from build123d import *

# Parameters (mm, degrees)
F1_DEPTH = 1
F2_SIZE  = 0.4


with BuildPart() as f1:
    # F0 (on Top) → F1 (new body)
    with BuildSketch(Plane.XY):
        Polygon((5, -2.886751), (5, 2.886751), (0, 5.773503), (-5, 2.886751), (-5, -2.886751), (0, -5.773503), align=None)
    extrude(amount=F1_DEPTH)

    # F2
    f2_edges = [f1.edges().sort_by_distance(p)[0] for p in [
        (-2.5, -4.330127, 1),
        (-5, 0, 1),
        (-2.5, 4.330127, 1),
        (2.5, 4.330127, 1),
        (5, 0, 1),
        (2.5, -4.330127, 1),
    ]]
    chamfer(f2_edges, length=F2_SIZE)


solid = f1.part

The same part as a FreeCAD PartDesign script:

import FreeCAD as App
import Part
import Sketcher
from FreeCAD import Vector
Q = App.Units.Quantity


def edges_at(feature, points):
    """Names of the edges that pass closest to the given points."""
    edges = feature.Shape.Edges
    near = lambda p: min(range(len(edges)), key=lambda i: edges[i].distToShape(Part.Vertex(*p))[0])
    return sorted({f"Edge{near(p) + 1}" for p in points})


def add_polygon(sketch, points):
    """Adds a closed chain of lines whose ends are joined by coincident constraints."""
    first, n = sketch.GeometryCount, len(points)
    for a, b in zip(points, points[1:] + points[:1]):
        sketch.addGeometry(Part.LineSegment(App.Vector(*a, 0), App.Vector(*b, 0)), False)
    for i in range(n):
        sketch.addConstraint(Sketcher.Constraint("Coincident", first + i, 2, first + (i + 1) % n, 1))

doc = App.newDocument("Part")
body = doc.addObject("PartDesign::Body", "Body")

# Sketch on XY plane
sketch1 = body.newObject("Sketcher::SketchObject", "Sketch")
sketch1.AttachmentSupport = (doc.getObject("XY_Plane"), [""])
sketch1.MapMode = "FlatFace"
add_polygon(sketch1, [(5, -2.886751), (5, 2.886751), (0, 5.773503), (-5, 2.886751), (-5, -2.886751), (0, -5.773503)])  # lines 0-5
sketch1.addConstraint([
    Sketcher.Constraint("Vertical", 0),
    Sketcher.Constraint("Vertical", 3),
    Sketcher.Constraint("Symmetric", 0, 2, 3, 2, -1, 1),
    Sketcher.Constraint("Symmetric", 1, 2, 4, 2, -1, 1),
    Sketcher.Constraint("PointOnObject", 1, 2, -2),
    Sketcher.Constraint("Parallel", 2, 5),
    Sketcher.Constraint("Horizontal", 0, 2, 2, 2),
    Sketcher.Constraint("Angle", 1, Q("149.999994 deg")),
    Sketcher.Constraint("DistanceX", -1, 1, 0, 2, Q("5 mm")),
    Sketcher.Constraint("DistanceY", 0, 1, 0, 2, Q("5.773502 mm")),
])
pad1 = body.newObject("PartDesign::Pad", "Pad")
pad1.Profile = sketch1
pad1.Length = 1
doc.recompute()

chamfer = body.newObject("PartDesign::Chamfer", "Chamfer")
chamfer.Base = (pad1, edges_at(pad1, [
    (-2.5, -4.33, 1),
    (-5, 0, 1),
    (-2.5, 4.33, 1),
    (2.5, 4.33, 1),
    (5, 0, 1),
    (2.5, -4.33, 1),
]))
chamfer.Size = 0.4

doc.recompute()
